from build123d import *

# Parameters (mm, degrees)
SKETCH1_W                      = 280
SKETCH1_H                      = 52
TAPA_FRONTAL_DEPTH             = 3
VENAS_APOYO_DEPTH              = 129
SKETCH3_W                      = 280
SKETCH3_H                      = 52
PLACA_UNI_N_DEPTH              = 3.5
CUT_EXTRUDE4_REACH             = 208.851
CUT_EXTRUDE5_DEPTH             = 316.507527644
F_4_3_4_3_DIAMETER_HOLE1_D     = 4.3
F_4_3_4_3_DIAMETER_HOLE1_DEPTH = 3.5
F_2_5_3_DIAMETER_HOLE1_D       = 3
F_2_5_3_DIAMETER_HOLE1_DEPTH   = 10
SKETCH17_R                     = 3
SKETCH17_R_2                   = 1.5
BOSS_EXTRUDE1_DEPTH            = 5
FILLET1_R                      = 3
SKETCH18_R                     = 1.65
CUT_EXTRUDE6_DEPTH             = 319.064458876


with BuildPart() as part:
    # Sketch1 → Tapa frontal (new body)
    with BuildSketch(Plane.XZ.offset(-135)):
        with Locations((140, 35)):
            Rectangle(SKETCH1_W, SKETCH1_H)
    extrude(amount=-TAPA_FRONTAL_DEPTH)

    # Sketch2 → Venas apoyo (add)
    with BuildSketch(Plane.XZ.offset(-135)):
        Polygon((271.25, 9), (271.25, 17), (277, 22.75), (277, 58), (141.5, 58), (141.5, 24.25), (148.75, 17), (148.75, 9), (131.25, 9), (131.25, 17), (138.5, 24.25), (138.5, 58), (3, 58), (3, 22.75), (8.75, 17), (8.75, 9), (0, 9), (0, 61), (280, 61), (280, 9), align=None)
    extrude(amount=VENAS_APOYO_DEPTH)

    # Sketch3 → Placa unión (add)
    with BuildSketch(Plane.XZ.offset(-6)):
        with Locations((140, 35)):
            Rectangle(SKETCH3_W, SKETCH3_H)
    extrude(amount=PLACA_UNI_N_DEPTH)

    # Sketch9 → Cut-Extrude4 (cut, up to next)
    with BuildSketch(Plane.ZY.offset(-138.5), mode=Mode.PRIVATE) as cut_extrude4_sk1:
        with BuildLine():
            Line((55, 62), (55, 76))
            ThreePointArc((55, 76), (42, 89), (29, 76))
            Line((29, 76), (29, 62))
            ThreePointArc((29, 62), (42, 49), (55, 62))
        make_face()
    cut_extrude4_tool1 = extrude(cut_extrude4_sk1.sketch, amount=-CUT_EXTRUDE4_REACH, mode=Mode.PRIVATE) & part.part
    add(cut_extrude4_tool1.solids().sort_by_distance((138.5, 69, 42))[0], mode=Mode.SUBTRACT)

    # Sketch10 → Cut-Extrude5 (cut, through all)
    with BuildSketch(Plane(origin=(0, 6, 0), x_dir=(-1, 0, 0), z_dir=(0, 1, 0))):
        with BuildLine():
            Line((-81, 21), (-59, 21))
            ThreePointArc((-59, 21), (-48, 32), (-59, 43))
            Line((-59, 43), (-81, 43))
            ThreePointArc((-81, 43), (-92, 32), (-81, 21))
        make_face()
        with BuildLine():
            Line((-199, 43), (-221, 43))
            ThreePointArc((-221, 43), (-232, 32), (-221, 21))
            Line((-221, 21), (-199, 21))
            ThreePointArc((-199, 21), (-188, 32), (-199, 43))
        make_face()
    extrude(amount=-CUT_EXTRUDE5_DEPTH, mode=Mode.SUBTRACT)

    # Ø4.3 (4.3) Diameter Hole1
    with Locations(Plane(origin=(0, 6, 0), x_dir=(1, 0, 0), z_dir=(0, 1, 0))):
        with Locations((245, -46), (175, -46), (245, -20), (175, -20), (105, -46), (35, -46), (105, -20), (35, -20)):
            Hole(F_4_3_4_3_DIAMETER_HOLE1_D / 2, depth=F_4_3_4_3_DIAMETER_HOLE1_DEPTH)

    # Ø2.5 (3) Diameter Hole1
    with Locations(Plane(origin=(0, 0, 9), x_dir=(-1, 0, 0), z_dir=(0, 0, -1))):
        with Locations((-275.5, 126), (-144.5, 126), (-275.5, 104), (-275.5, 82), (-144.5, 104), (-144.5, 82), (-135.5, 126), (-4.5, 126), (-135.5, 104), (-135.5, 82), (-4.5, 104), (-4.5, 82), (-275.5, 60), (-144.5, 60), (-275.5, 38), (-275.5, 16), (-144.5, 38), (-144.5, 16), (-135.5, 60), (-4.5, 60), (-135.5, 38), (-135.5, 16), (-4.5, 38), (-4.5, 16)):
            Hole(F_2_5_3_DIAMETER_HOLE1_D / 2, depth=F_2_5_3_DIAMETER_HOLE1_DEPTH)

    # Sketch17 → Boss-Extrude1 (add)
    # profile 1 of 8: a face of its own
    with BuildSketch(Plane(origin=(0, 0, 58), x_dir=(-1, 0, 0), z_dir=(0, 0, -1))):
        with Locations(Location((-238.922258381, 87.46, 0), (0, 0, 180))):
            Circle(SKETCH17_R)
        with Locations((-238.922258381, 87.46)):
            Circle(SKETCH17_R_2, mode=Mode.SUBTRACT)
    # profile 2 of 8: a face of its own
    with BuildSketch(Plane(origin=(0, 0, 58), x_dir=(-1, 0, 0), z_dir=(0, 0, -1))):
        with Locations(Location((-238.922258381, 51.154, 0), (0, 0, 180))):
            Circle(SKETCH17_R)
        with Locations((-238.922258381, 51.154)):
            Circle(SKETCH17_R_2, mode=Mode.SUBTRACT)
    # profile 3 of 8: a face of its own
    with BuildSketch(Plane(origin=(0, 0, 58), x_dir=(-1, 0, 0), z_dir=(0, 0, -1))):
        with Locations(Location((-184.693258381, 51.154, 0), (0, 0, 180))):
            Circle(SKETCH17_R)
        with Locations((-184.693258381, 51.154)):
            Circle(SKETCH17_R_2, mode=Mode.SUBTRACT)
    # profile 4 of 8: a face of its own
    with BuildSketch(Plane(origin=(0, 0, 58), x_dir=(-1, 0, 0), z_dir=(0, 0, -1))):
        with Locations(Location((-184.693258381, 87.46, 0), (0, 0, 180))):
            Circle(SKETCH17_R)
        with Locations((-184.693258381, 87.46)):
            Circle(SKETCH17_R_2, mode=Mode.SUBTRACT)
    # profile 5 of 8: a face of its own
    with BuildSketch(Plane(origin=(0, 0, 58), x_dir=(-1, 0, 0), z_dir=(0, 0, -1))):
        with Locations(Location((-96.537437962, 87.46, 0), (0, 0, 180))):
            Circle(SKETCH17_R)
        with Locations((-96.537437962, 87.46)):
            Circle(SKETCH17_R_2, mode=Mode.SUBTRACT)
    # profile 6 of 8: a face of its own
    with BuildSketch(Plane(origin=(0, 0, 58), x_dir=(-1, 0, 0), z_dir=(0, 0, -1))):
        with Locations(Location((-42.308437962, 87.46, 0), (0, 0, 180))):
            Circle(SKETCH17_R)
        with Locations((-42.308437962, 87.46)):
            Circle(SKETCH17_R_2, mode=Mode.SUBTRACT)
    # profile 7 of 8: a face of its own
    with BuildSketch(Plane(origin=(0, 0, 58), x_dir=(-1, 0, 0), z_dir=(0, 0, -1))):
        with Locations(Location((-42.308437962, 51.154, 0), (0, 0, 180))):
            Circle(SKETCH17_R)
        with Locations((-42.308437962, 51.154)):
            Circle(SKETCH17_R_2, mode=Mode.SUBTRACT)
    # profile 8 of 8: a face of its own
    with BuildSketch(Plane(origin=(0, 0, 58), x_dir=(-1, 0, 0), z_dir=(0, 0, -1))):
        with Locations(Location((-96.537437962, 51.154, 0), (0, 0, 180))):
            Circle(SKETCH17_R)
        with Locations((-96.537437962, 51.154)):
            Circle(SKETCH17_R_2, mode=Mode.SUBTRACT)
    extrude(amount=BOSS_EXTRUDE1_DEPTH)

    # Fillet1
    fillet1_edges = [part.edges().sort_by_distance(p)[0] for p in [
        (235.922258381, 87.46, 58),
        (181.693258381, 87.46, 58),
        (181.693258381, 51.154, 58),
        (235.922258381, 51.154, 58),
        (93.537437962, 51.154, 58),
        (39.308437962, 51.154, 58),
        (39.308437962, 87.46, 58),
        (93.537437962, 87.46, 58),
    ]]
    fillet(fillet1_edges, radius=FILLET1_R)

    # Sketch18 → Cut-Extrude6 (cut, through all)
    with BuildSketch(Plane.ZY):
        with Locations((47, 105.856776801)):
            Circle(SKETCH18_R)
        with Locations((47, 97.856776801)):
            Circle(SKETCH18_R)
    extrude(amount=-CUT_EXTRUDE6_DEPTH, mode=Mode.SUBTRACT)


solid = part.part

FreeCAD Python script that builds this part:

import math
import FreeCAD as App
import Part
import Sketcher

V = App.Vector


def edges_at(feature, points):
    """Names of the edges that pass closest to the given points."""
    edges = feature.Shape.Edges
    near = lambda p: min(range(len(edges)), key=lambda i: edges[i].distToShape(Part.Vertex(*p))[0])
    return sorted({f"Edge{near(p) + 1}" for p in points})


def add_polygon(sketch, points):
    """Adds a closed chain of lines whose ends are joined by coincident constraints."""
    first, n = sketch.GeometryCount, len(points)
    for a, b in zip(points, points[1:] + points[:1]):
        sketch.addGeometry(Part.LineSegment(App.Vector(*a, 0), App.Vector(*b, 0)), False)
    for i in range(n):
        sketch.addConstraint(Sketcher.Constraint("Coincident", first + i, 2, first + (i + 1) % n, 1))

doc = App.newDocument("Part")
params = doc.addObject("Spreadsheet::Sheet", "Params")
for row, (alias, value) in enumerate([
    ("sketch1_width", "280 mm"),
    ("sketch1_height", "52 mm"),
    ("pad1_length", "3 mm"),
    ("sketch2_width", "280 mm"),
    ("sketch2_height", "8 mm"),
    ("sketch2_height2", "52 mm"),
    ("sketch2_width2", "135.5 mm"),
    ("sketch2_width3", "17.5 mm"),
    ("pad2_length", "129 mm"),
    ("sketch3_width", "280 mm"),
    ("sketch3_height", "52 mm"),
    ("pad3_length", "3.5 mm"),
    ("sketch4_radius", "13 mm"),
    ("sketch4_width", "14 mm"),
    ("sketch5_radius", "11 mm"),
    ("sketch5_width", "22 mm"),
    ("sketch6_diameter", "4.3 mm"),
    ("hole_diameter", "4.3 mm"),
    ("hole_depth", "3.5 mm"),
    ("sketch7_diameter", "3 mm"),
    ("hole2_diameter", "3 mm"),
    ("hole2_depth", "10 mm"),
    ("sketch8_diameter", "6 mm"),
    ("sketch8_diameter2", "3 mm"),
    ("pad4_length", "5 mm"),
    ("fillet_radius", "3 mm"),
    ("sketch9_diameter", "3.3 mm"),
], start=1):
    params.set(f"A{row}", alias)
    params.set(f"B{row}", "=" + value)
    params.setAlias(f"B{row}", alias)

body = doc.addObject("PartDesign::Body", "Body")

sketch1 = body.newObject("Sketcher::SketchObject", "Sketch")
sketch1.AttachmentSupport = (doc.getObject("XZ_Plane"), [""])
sketch1.MapMode = "FlatFace"
sketch1.AttachmentOffset = App.Placement(V(0, 0, -135), App.Rotation())
add_polygon(sketch1, [(0, 61), (0, 9), (280, 9), (280, 61)])
sketch1.addConstraint(Sketcher.Constraint("Vertical", 0))
sketch1.addConstraint(Sketcher.Constraint("Horizontal", 1))
sketch1.addConstraint(Sketcher.Constraint("Vertical", 2))
sketch1.addConstraint(Sketcher.Constraint("Horizontal", 3))
sketch1.addConstraint(Sketcher.Constraint("PointOnObject", 0, 2, -2))
sketch1.addConstraint(Sketcher.Constraint("DistanceX", 1, 1, 1, 2, 280.0))
sketch1.addConstraint(Sketcher.Constraint("DistanceY", 0, 2, 0, 1, 52.0))
sketch1.addConstraint(Sketcher.Constraint("DistanceY", -1, 1, 0, 2, 9.0))
sketch1.setExpression("Constraints[9]", "Params.sketch1_width")
sketch1.setExpression("Constraints[10]", "Params.sketch1_height")
pad1 = body.newObject("PartDesign::Pad", "Pad")
pad1.Profile = sketch1
pad1.setExpression("Length", "Params.pad1_length")
pad1.Reversed = True

sketch2 = body.newObject("Sketcher::SketchObject", "Sketch001")
sketch2.AttachmentSupport = (doc.getObject("XZ_Plane"), [""])
sketch2.MapMode = "FlatFace"
sketch2.AttachmentOffset = App.Placement(V(0, 0, -135), App.Rotation())
add_polygon(sketch2, [(271, 17), (271, 9), (280, 9), (280, 61), (0, 61), (0, 9), (9, 9), (9, 17), (3, 23), (3, 58), (138, 58), (138, 24), (131, 17), (131, 9), (149, 9), (149, 17), (142, 24), (142, 58), (277, 58), (277, 23)])
sketch2.addConstraint(Sketcher.Constraint("Vertical", 0))
sketch2.addConstraint(Sketcher.Constraint("Horizontal", 1))
sketch2.addConstraint(Sketcher.Constraint("Vertical", 2))
sketch2.addConstraint(Sketcher.Constraint("Horizontal", 3))
sketch2.addConstraint(Sketcher.Constraint("Vertical", 4))
sketch2.addConstraint(Sketcher.Constraint("Horizontal", 5))
sketch2.addConstraint(Sketcher.Constraint("Vertical", 6))
sketch2.addConstraint(Sketcher.Constraint("Vertical", 8))
sketch2.addConstraint(Sketcher.Constraint("Horizontal", 9))
sketch2.addConstraint(Sketcher.Constraint("Vertical", 10))
sketch2.addConstraint(Sketcher.Constraint("Vertical", 12))
sketch2.addConstraint(Sketcher.Constraint("Horizontal", 13))
sketch2.addConstraint(Sketcher.Constraint("Vertical", 14))
sketch2.addConstraint(Sketcher.Constraint("Vertical", 16))
sketch2.addConstraint(Sketcher.Constraint("Horizontal", 17))
sketch2.addConstraint(Sketcher.Constraint("Vertical", 18))
sketch2.addConstraint(Sketcher.Constraint("PointOnObject", 3, 2, -2))
sketch2.addConstraint(Sketcher.Constraint("Perpendicular", 7, 11))
sketch2.addConstraint(Sketcher.Constraint("Perpendicular", 11, 15))
sketch2.addConstraint(Sketcher.Constraint("Perpendicular", 15, 19))
sketch2.addConstraint(Sketcher.Constraint("Horizontal", 1, 2, 4, 2))
sketch2.addConstraint(Sketcher.Constraint("Horizontal", 6, 2, 11, 2))
sketch2.addConstraint(Sketcher.Constraint("Horizontal", 5, 2, 12, 2))
sketch2.addConstraint(Sketcher.Constraint("Horizontal", 11, 2, 14, 2))
sketch2.addConstraint(Sketcher.Constraint("Horizontal", 10, 2, 15, 2))
sketch2.addConstraint(Sketcher.Constraint("Horizontal", 9, 2, 16, 2))
sketch2.addConstraint(Sketcher.Constraint("Horizontal", 7, 2, 18, 2))
sketch2.addConstraint(Sketcher.Constraint("Horizontal", 14, 2, 19, 2))
sketch2.addConstraint(Sketcher.Constraint("Equal", 1, 5))
sketch2.addConstraint(Sketcher.Constraint("Equal", 9, 17))
sketch2.addConstraint(Sketcher.Constraint("Equal", 11, 15))
sketch2.addConstraint(Sketcher.Constraint("DistanceX", 3, 2, 3, 1, 280.0))
sketch2.addConstraint(Sketcher.Constraint("DistanceY", 0, 2, 0, 1, 8.0))
sketch2.addConstraint(Sketcher.Constraint("DistanceY", 2, 1, 2, 2, 52.0))
sketch2.addConstraint(Sketcher.Constraint("DistanceX", 9, 1, 9, 2, 135.5))
sketch2.addConstraint(Sketcher.Constraint("DistanceX", 13, 1, 13, 2, 17.5))
sketch2.addConstraint(Sketcher.Constraint("DistanceY", -1, 1, 0, 2, 9.0))
sketch2.addConstraint(Sketcher.Constraint("DistanceX", -1, 1, 7, 2, 3.0))
sketch2.addConstraint(Sketcher.Constraint("DistanceY", -1, 1, 8, 2, 58.0))
sketch2.addConstraint(Sketcher.Constraint("DistanceX", 1, 1, 1, 2, 8.75))
sketch2.setExpression("Constraints[51]", "Params.sketch2_width")
sketch2.setExpression("Constraints[52]", "Params.sketch2_height")
sketch2.setExpression("Constraints[53]", "Params.sketch2_height2")
sketch2.setExpression("Constraints[54]", "Params.sketch2_width2")
sketch2.setExpression("Constraints[55]", "Params.sketch2_width3")
pad2 = body.newObject("PartDesign::Pad", "Pad001")
pad2.Profile = sketch2
pad2.setExpression("Length", "Params.pad2_length")

sketch3 = body.newObject("Sketcher::SketchObject", "Sketch002")
sketch3.AttachmentSupport = (doc.getObject("XZ_Plane"), [""])
sketch3.MapMode = "FlatFace"
sketch3.AttachmentOffset = App.Placement(V(0, 0, -6), App.Rotation())
add_polygon(sketch3, [(0, 61), (0, 9), (280, 9), (280, 61)])
sketch3.addConstraint(Sketcher.Constraint("Vertical", 0))
sketch3.addConstraint(Sketcher.Constraint("Horizontal", 1))
sketch3.addConstraint(Sketcher.Constraint("Vertical", 2))
sketch3.addConstraint(Sketcher.Constraint("Horizontal", 3))
sketch3.addConstraint(Sketcher.Constraint("PointOnObject", 0, 2, -2))
sketch3.addConstraint(Sketcher.Constraint("DistanceX", 1, 1, 1, 2, 280.0))
sketch3.addConstraint(Sketcher.Constraint("DistanceY", 0, 2, 0, 1, 52.0))
sketch3.addConstraint(Sketcher.Constraint("DistanceY", -1, 1, 0, 2, 9.0))
sketch3.setExpression("Constraints[9]", "Params.sketch3_width")
sketch3.setExpression("Constraints[10]", "Params.sketch3_height")
pad3 = body.newObject("PartDesign::Pad", "Pad002")
pad3.Profile = sketch3
pad3.setExpression("Length", "Params.pad3_length")

sketch4 = body.newObject("Sketcher::SketchObject", "Sketch003")
sketch4.AttachmentSupport = (doc.getObject("YZ_Plane"), [""])
sketch4.MapMode = "FlatFace"
sketch4.AttachmentOffset = App.Placement(V(0, 0, 138.5), App.Rotation())
sketch4.addGeometry(Part.LineSegment(V(62, 55, 0), V(76, 55, 0)), False)
sketch4.addGeometry(Part.ArcOfCircle(Part.Circle(V(76, 42, 0), V(0, 0, 1), 13), math.radians(-90), math.radians(90)), False)
sketch4.addGeometry(Part.LineSegment(V(76, 29, 0), V(62, 29, 0)), False)
sketch4.addGeometry(Part.ArcOfCircle(Part.Circle(V(62, 42, 0), V(0, 0, 1), 13), math.radians(90), math.radians(270)), False)
sketch4.addConstraint(Sketcher.Constraint("Tangent", 0, 2, 1, 2))
sketch4.addConstraint(Sketcher.Constraint("Tangent", 1, 1, 2, 1))
sketch4.addConstraint(Sketcher.Constraint("Tangent", 2, 2, 3, 2))
sketch4.addConstraint(Sketcher.Constraint("Tangent", 3, 1, 0, 1))
sketch4.addConstraint(Sketcher.Constraint("Horizontal", 0))
sketch4.addConstraint(Sketcher.Constraint("Horizontal", 2))
sketch4.addConstraint(Sketcher.Constraint("Radius", 1, 13.0))
sketch4.addConstraint(Sketcher.Constraint("DistanceX", 0, 1, 0, 2, 14.0))
sketch4.addConstraint(Sketcher.Constraint("DistanceX", -1, 1, 1, 3, 76.0))
sketch4.addConstraint(Sketcher.Constraint("DistanceY", -1, 1, 1, 3, 42.0))
sketch4.setExpression("Constraints[6]", "Params.sketch4_radius")
sketch4.setExpression("Constraints[7]", "Params.sketch4_width")
pocket1 = body.newObject("PartDesign::Pocket", "Pocket")
pocket1.Profile = sketch4
pocket1.Type = "UpToFirst"
pocket1.Reversed = True

sketch5 = body.newObject("Sketcher::SketchObject", "Sketch004")
sketch5.AttachmentSupport = (doc.getObject("XZ_Plane"), [""])
sketch5.MapMode = "FlatFace"
sketch5.AttachmentOffset = App.Placement(V(0, 0, -6), App.Rotation())
sketch5.addGeometry(Part.LineSegment(V(81, 21, 0), V(59, 21, 0)), False)
sketch5.addGeometry(Part.ArcOfCircle(Part.Circle(V(59, 32, 0), V(0, 0, 1), 11), math.radians(90), math.radians(270)), False)
sketch5.addGeometry(Part.LineSegment(V(59, 43, 0), V(81, 43, 0)), False)
sketch5.addGeometry(Part.ArcOfCircle(Part.Circle(V(81, 32, 0), V(0, 0, 1), 11), math.radians(-90), math.radians(90)), False)
sketch5.addGeometry(Part.LineSegment(V(199, 43, 0), V(221, 43, 0)), False)
sketch5.addGeometry(Part.ArcOfCircle(Part.Circle(V(221, 32, 0), V(0, 0, 1), 11), math.radians(-90), math.radians(90)), False)
sketch5.addGeometry(Part.LineSegment(V(221, 21, 0), V(199, 21, 0)), False)
sketch5.addGeometry(Part.ArcOfCircle(Part.Circle(V(199, 32, 0), V(0, 0, 1), 11), math.radians(90), math.radians(270)), False)
sketch5.addConstraint(Sketcher.Constraint("Tangent", 0, 2, 1, 2))
sketch5.addConstraint(Sketcher.Constraint("Tangent", 1, 1, 2, 1))
sketch5.addConstraint(Sketcher.Constraint("Tangent", 2, 2, 3, 2))
sketch5.addConstraint(Sketcher.Constraint("Tangent", 3, 1, 0, 1))
sketch5.addConstraint(Sketcher.Constraint("Tangent", 4, 2, 5, 2))
sketch5.addConstraint(Sketcher.Constraint("Tangent", 5, 1, 6, 1))
sketch5.addConstraint(Sketcher.Constraint("Tangent", 6, 2, 7, 2))
sketch5.addConstraint(Sketcher.Constraint("Tangent", 7, 1, 4, 1))
sketch5.addConstraint(Sketcher.Constraint("Horizontal", 0))
sketch5.addConstraint(Sketcher.Constraint("Horizontal", 2))
sketch5.addConstraint(Sketcher.Constraint("Horizontal", 4))
sketch5.addConstraint(Sketcher.Constraint("Horizontal", 6))
sketch5.addConstraint(Sketcher.Constraint("Equal", 3, 5))
sketch5.addConstraint(Sketcher.Constraint("Horizontal", 3, 3, 5, 3))
sketch5.addConstraint(Sketcher.Constraint("Equal", 2, 4))
sketch5.addConstraint(Sketcher.Constraint("Radius", 1, 11.0))
sketch5.addConstraint(Sketcher.Constraint("DistanceX", 0, 2, 0, 1, 22.0))
sketch5.addConstraint(Sketcher.Constraint("DistanceX", -1, 1, 1, 3, 59.0))
sketch5.addConstraint(Sketcher.Constraint("DistanceY", -1, 1, 1, 3, 32.0))
sketch5.addConstraint(Sketcher.Constraint("DistanceX", -1, 1, 5, 3, 221.0))
sketch5.setExpression("Constraints[15]", "Params.sketch5_radius")
sketch5.setExpression("Constraints[16]", "Params.sketch5_width")
pocket2 = body.newObject("PartDesign::Pocket", "Pocket001")
pocket2.Profile = sketch5
pocket2.Type = "ThroughAll"
pocket2.Reversed = True

sketch6 = body.newObject("Sketcher::SketchObject", "Sketch005")
sketch6.AttachmentSupport = (doc.getObject("XZ_Plane"), [""])
sketch6.MapMode = "FlatFace"
sketch6.AttachmentOffset = App.Placement(V(0, 0, -6), App.Rotation())
sketch6.addGeometry(Part.Circle(V(245, 46, 0), V(0, 0, 1), 2.1), False)
sketch6.addGeometry(Part.Circle(V(175, 46, 0), V(0, 0, 1), 2.1), False)
sketch6.addGeometry(Part.Circle(V(245, 20, 0), V(0, 0, 1), 2.1), False)
sketch6.addGeometry(Part.Circle(V(175, 20, 0), V(0, 0, 1), 2.1), False)
sketch6.addGeometry(Part.Circle(V(105, 46, 0), V(0, 0, 1), 2.1), False)
sketch6.addGeometry(Part.Circle(V(35, 46, 0), V(0, 0, 1), 2.1), False)
sketch6.addGeometry(Part.Circle(V(105, 20, 0), V(0, 0, 1), 2.1), False)
sketch6.addGeometry(Part.Circle(V(35, 20, 0), V(0, 0, 1), 2.1), False)
sketch6.addConstraint(Sketcher.Constraint("Equal", 0, 1))
sketch6.addConstraint(Sketcher.Constraint("Equal", 1, 2))
sketch6.addConstraint(Sketcher.Constraint("Equal", 2, 3))
sketch6.addConstraint(Sketcher.Constraint("Equal", 3, 4))
sketch6.addConstraint(Sketcher.Constraint("Equal", 4, 5))
sketch6.addConstraint(Sketcher.Constraint("Equal", 5, 6))
sketch6.addConstraint(Sketcher.Constraint("Equal", 6, 7))
sketch6.addConstraint(Sketcher.Constraint("Horizontal", 0, 3, 1, 3))
sketch6.addConstraint(Sketcher.Constraint("Horizontal", 2, 3, 3, 3))
sketch6.addConstraint(Sketcher.Constraint("Horizontal", 1, 3, 4, 3))
sketch6.addConstraint(Sketcher.Constraint("Horizontal", 4, 3, 5, 3))
sketch6.addConstraint(Sketcher.Constraint("Horizontal", 3, 3, 6, 3))
sketch6.addConstraint(Sketcher.Constraint("Horizontal", 6, 3, 7, 3))
sketch6.addConstraint(Sketcher.Constraint("Vertical", 0, 3, 2, 3))
sketch6.addConstraint(Sketcher.Constraint("Vertical", 1, 3, 3, 3))
sketch6.addConstraint(Sketcher.Constraint("Vertical", 4, 3, 6, 3))
sketch6.addConstraint(Sketcher.Constraint("Vertical", 5, 3, 7, 3))
sketch6.addConstraint(Sketcher.Constraint("Diameter", 0, 4.3))
sketch6.addConstraint(Sketcher.Constraint("DistanceX", -1, 1, 0, 3, 245.0))
sketch6.addConstraint(Sketcher.Constraint("DistanceY", -1, 1, 0, 3, 46.0))
sketch6.addConstraint(Sketcher.Constraint("DistanceX", -1, 1, 1, 3, 175.0))
sketch6.addConstraint(Sketcher.Constraint("DistanceY", -1, 1, 2, 3, 20.0))
sketch6.addConstraint(Sketcher.Constraint("DistanceX", -1, 1, 4, 3, 105.0))
sketch6.addConstraint(Sketcher.Constraint("DistanceX", -1, 1, 5, 3, 35.0))
sketch6.setExpression("Constraints[17]", "Params.sketch6_diameter")
doc.recompute()
hole = body.newObject("PartDesign::Hole", "Hole")
hole.Profile = sketch6
hole.ThreadType = "None"
hole.setExpression("Diameter", "Params.hole_diameter")
hole.DepthType = "Dimension"
hole.setExpression("Depth", "Params.hole_depth")
hole.DrillPoint = "Flat"
hole.Reversed = True

sketch7 = body.newObject("Sketcher::SketchObject", "Sketch006")
sketch7.AttachmentSupport = (doc.getObject("XY_Plane"), [""])
sketch7.MapMode = "FlatFace"
sketch7.AttachmentOffset = App.Placement(V(0, 0, 9), App.Rotation())
sketch7.addGeometry(Part.Circle(V(275.5, 126, 0), V(0, 0, 1), 1.5), False)
sketch7.addGeometry(Part.Circle(V(144.5, 126, 0), V(0, 0, 1), 1.5), False)
sketch7.addGeometry(Part.Circle(V(275.5, 104, 0), V(0, 0, 1), 1.5), False)
sketch7.addGeometry(Part.Circle(V(275.5, 82, 0), V(0, 0, 1), 1.5), False)
sketch7.addGeometry(Part.Circle(V(144.5, 104, 0), V(0, 0, 1), 1.5), False)
sketch7.addGeometry(Part.Circle(V(144.5, 82, 0), V(0, 0, 1), 1.5), False)
sketch7.addGeometry(Part.Circle(V(135.5, 126, 0), V(0, 0, 1), 1.5), False)
sketch7.addGeometry(Part.Circle(V(4.5, 126, 0), V(0, 0, 1), 1.5), False)
sketch7.addGeometry(Part.Circle(V(135.5, 104, 0), V(0, 0, 1), 1.5), False)
sketch7.addGeometry(Part.Circle(V(135.5, 82, 0), V(0, 0, 1), 1.5), False)
sketch7.addGeometry(Part.Circle(V(4.5, 104, 0), V(0, 0, 1), 1.5), False)
sketch7.addGeometry(Part.Circle(V(4.5, 82, 0), V(0, 0, 1), 1.5), False)
sketch7.addGeometry(Part.Circle(V(275.5, 60, 0), V(0, 0, 1), 1.5), False)
sketch7.addGeometry(Part.Circle(V(144.5, 60, 0), V(0, 0, 1), 1.5), False)
sketch7.addGeometry(Part.Circle(V(275.5, 38, 0), V(0, 0, 1), 1.5), False)
sketch7.addGeometry(Part.Circle(V(275.5, 16, 0), V(0, 0, 1), 1.5), False)
sketch7.addGeometry(Part.Circle(V(144.5, 38, 0), V(0, 0, 1), 1.5), False)
sketch7.addGeometry(Part.Circle(V(144.5, 16, 0), V(0, 0, 1), 1.5), False)
sketch7.addGeometry(Part.Circle(V(135.5, 60, 0), V(0, 0, 1), 1.5), False)
sketch7.addGeometry(Part.Circle(V(4.5, 60, 0), V(0, 0, 1), 1.5), False)
sketch7.addGeometry(Part.Circle(V(135.5, 38, 0), V(0, 0, 1), 1.5), False)
sketch7.addGeometry(Part.Circle(V(135.5, 16, 0), V(0, 0, 1), 1.5), False)
sketch7.addGeometry(Part.Circle(V(4.5, 38, 0), V(0, 0, 1), 1.5), False)
sketch7.addGeometry(Part.Circle(V(4.5, 16, 0), V(0, 0, 1), 1.5), False)
sketch7.addConstraint(Sketcher.Constraint("Equal", 0, 1))
sketch7.addConstraint(Sketcher.Constraint("Equal", 1, 2))
sketch7.addConstraint(Sketcher.Constraint("Equal", 2, 3))
sketch7.addConstraint(Sketcher.Constraint("Equal", 3, 4))
sketch7.addConstraint(Sketcher.Constraint("Equal", 4, 5))
sketch7.addConstraint(Sketcher.Constraint("Equal", 5, 6))
sketch7.addConstraint(Sketcher.Constraint("Equal", 6, 7))
sketch7.addConstraint(Sketcher.Constraint("Equal", 7, 8))
sketch7.addConstraint(Sketcher.Constraint("Equal", 8, 9))
sketch7.addConstraint(Sketcher.Constraint("Equal", 9, 10))
sketch7.addConstraint(Sketcher.Constraint("Equal", 10, 11))
sketch7.addConstraint(Sketcher.Constraint("Equal", 11, 12))
sketch7.addConstraint(Sketcher.Constraint("Equal", 12, 13))
sketch7.addConstraint(Sketcher.Constraint("Equal", 13, 14))
sketch7.addConstraint(Sketcher.Constraint("Equal", 14, 15))
sketch7.addConstraint(Sketcher.Constraint("Equal", 15, 16))
sketch7.addConstraint(Sketcher.Constraint("Equal", 16, 17))
sketch7.addConstraint(Sketcher.Constraint("Equal", 17, 18))
sketch7.addConstraint(Sketcher.Constraint("Equal", 18, 19))
sketch7.addConstraint(Sketcher.Constraint("Equal", 19, 20))
sketch7.addConstraint(Sketcher.Constraint("Equal", 20, 21))
sketch7.addConstraint(Sketcher.Constraint("Equal", 21, 22))
sketch7.addConstraint(Sketcher.Constraint("Equal", 22, 23))
sketch7.addConstraint(Sketcher.Constraint("Horizontal", 0, 3, 1, 3))
sketch7.addConstraint(Sketcher.Constraint("Horizontal", 2, 3, 4, 3))
sketch7.addConstraint(Sketcher.Constraint("Horizontal", 3, 3, 5, 3))
sketch7.addConstraint(Sketcher.Constraint("Horizontal", 1, 3, 6, 3))
sketch7.addConstraint(Sketcher.Constraint("Horizontal", 6, 3, 7, 3))
sketch7.addConstraint(Sketcher.Constraint("Horizontal", 4, 3, 8, 3))
sketch7.addConstraint(Sketcher.Constraint("Horizontal", 5, 3, 9, 3))
sketch7.addConstraint(Sketcher.Constraint("Horizontal", 8, 3, 10, 3))
sketch7.addConstraint(Sketcher.Constraint("Horizontal", 9, 3, 11, 3))
sketch7.addConstraint(Sketcher.Constraint("Horizontal", 12, 3, 13, 3))
sketch7.addConstraint(Sketcher.Constraint("Horizontal", 14, 3, 16, 3))
sketch7.addConstraint(Sketcher.Constraint("Horizontal", 15, 3, 17, 3))
sketch7.addConstraint(Sketcher.Constraint("Horizontal", 13, 3, 18, 3))
sketch7.addConstraint(Sketcher.Constraint("Horizontal", 18, 3, 19, 3))
sketch7.addConstraint(Sketcher.Constraint("Horizontal", 16, 3, 20, 3))
sketch7.addConstraint(Sketcher.Constraint("Horizontal", 17, 3, 21, 3))
sketch7.addConstraint(Sketcher.Constraint("Horizontal", 20, 3, 22, 3))
sketch7.addConstraint(Sketcher.Constraint("Horizontal", 21, 3, 23, 3))
sketch7.addConstraint(Sketcher.Constraint("Vertical", 0, 3, 2, 3))
sketch7.addConstraint(Sketcher.Constraint("Vertical", 2, 3, 3, 3))
sketch7.addConstraint(Sketcher.Constraint("Vertical", 1, 3, 4, 3))
sketch7.addConstraint(Sketcher.Constraint("Vertical", 4, 3, 5, 3))
sketch7.addConstraint(Sketcher.Constraint("Vertical", 6, 3, 8, 3))
sketch7.addConstraint(Sketcher.Constraint("Vertical", 8, 3, 9, 3))
sketch7.addConstraint(Sketcher.Constraint("Vertical", 7, 3, 10, 3))
sketch7.addConstraint(Sketcher.Constraint("Vertical", 10, 3, 11, 3))
sketch7.addConstraint(Sketcher.Constraint("Vertical", 3, 3, 12, 3))
sketch7.addConstraint(Sketcher.Constraint("Vertical", 5, 3, 13, 3))
sketch7.addConstraint(Sketcher.Constraint("Vertical", 12, 3, 14, 3))
sketch7.addConstraint(Sketcher.Constraint("Vertical", 14, 3, 15, 3))
sketch7.addConstraint(Sketcher.Constraint("Vertical", 13, 3, 16, 3))
sketch7.addConstraint(Sketcher.Constraint("Vertical", 16, 3, 17, 3))
sketch7.addConstraint(Sketcher.Constraint("Vertical", 9, 3, 18, 3))
sketch7.addConstraint(Sketcher.Constraint("Vertical", 11, 3, 19, 3))
sketch7.addConstraint(Sketcher.Constraint("Vertical", 18, 3, 20, 3))
sketch7.addConstraint(Sketcher.Constraint("Vertical", 20, 3, 21, 3))
sketch7.addConstraint(Sketcher.Constraint("Vertical", 19, 3, 22, 3))
sketch7.addConstraint(Sketcher.Constraint("Vertical", 22, 3, 23, 3))
sketch7.addConstraint(Sketcher.Constraint("Diameter", 0, 3.0))
sketch7.addConstraint(Sketcher.Constraint("DistanceY", -1, 1, 0, 3, 126.0))
sketch7.addConstraint(Sketcher.Constraint("DistanceY", -1, 1, 2, 3, 104.0))
sketch7.addConstraint(Sketcher.Constraint("DistanceY", -1, 1, 3, 3, 82.0))
sketch7.addConstraint(Sketcher.Constraint("DistanceY", -1, 1, 12, 3, 60.0))
sketch7.addConstraint(Sketcher.Constraint("DistanceY", -1, 1, 14, 3, 38.0))
sketch7.addConstraint(Sketcher.Constraint("DistanceY", -1, 1, 15, 3, 16.0))
sketch7.addConstraint(Sketcher.Constraint("DistanceX", 1, 3, 0, 3, 131.0))
sketch7.addConstraint(Sketcher.Constraint("DistanceX", 6, 3, 1, 3, 9.0))
sketch7.addConstraint(Sketcher.Constraint("DistanceX", 7, 3, 6, 3, 131.0))
sketch7.addConstraint(Sketcher.Constraint("DistanceX", -1, 1, 0, 3, 275.5))
sketch7.setExpression("Constraints[61]", "Params.sketch7_diameter")
doc.recompute()
hole2 = body.newObject("PartDesign::Hole", "Hole001")
hole2.Profile = sketch7
hole2.ThreadType = "None"
hole2.setExpression("Diameter", "Params.hole2_diameter")
hole2.DepthType = "Dimension"
hole2.setExpression("Depth", "Params.hole2_depth")
hole2.DrillPoint = "Flat"
hole2.Reversed = True

sketch8 = body.newObject("Sketcher::SketchObject", "Sketch007")
sketch8.AttachmentSupport = (doc.getObject("XY_Plane"), [""])
sketch8.MapMode = "FlatFace"
sketch8.AttachmentOffset = App.Placement(V(0, 0, 58), App.Rotation())
sketch8.addGeometry(Part.Circle(V(238.9, 87.5, 0), V(0, 0, 1), 3), False)
sketch8.addGeometry(Part.Circle(V(238.9, 87.5, 0), V(0, 0, 1), 1.5), False)
sketch8.addGeometry(Part.Circle(V(238.9, 51.2, 0), V(0, 0, 1), 3), False)
sketch8.addGeometry(Part.Circle(V(238.9, 51.2, 0), V(0, 0, 1), 1.5), False)
sketch8.addGeometry(Part.Circle(V(184.7, 51.2, 0), V(0, 0, 1), 3), False)
sketch8.addGeometry(Part.Circle(V(184.7, 51.2, 0), V(0, 0, 1), 1.5), False)
sketch8.addGeometry(Part.Circle(V(184.7, 87.5, 0), V(0, 0, 1), 3), False)
sketch8.addGeometry(Part.Circle(V(184.7, 87.5, 0), V(0, 0, 1), 1.5), False)
sketch8.addGeometry(Part.Circle(V(96.5, 87.5, 0), V(0, 0, 1), 3), False)
sketch8.addGeometry(Part.Circle(V(96.5, 87.5, 0), V(0, 0, 1), 1.5), False)
sketch8.addGeometry(Part.Circle(V(42.3, 87.5, 0), V(0, 0, 1), 3), False)
sketch8.addGeometry(Part.Circle(V(42.3, 87.5, 0), V(0, 0, 1), 1.5), False)
sketch8.addGeometry(Part.Circle(V(42.3, 51.2, 0), V(0, 0, 1), 3), False)
sketch8.addGeometry(Part.Circle(V(42.3, 51.2, 0), V(0, 0, 1), 1.5), False)
sketch8.addGeometry(Part.Circle(V(96.5, 51.2, 0), V(0, 0, 1), 3), False)
sketch8.addGeometry(Part.Circle(V(96.5, 51.2, 0), V(0, 0, 1), 1.5), False)
sketch8.addConstraint(Sketcher.Constraint("Coincident", 1, 3, 0, 3))
sketch8.addConstraint(Sketcher.Constraint("Coincident", 3, 3, 2, 3))
sketch8.addConstraint(Sketcher.Constraint("Coincident", 5, 3, 4, 3))
sketch8.addConstraint(Sketcher.Constraint("Coincident", 7, 3, 6, 3))
sketch8.addConstraint(Sketcher.Constraint("Coincident", 9, 3, 8, 3))
sketch8.addConstraint(Sketcher.Constraint("Coincident", 11, 3, 10, 3))
sketch8.addConstraint(Sketcher.Constraint("Coincident", 13, 3, 12, 3))
sketch8.addConstraint(Sketcher.Constraint("Coincident", 15, 3, 14, 3))
sketch8.addConstraint(Sketcher.Constraint("Equal", 0, 2))
sketch8.addConstraint(Sketcher.Constraint("Equal", 1, 3))
sketch8.addConstraint(Sketcher.Constraint("Equal", 2, 4))
sketch8.addConstraint(Sketcher.Constraint("Equal", 3, 5))
sketch8.addConstraint(Sketcher.Constraint("Equal", 4, 6))
sketch8.addConstraint(Sketcher.Constraint("Equal", 5, 7))
sketch8.addConstraint(Sketcher.Constraint("Equal", 6, 8))
sketch8.addConstraint(Sketcher.Constraint("Equal", 7, 9))
sketch8.addConstraint(Sketcher.Constraint("Equal", 8, 10))
sketch8.addConstraint(Sketcher.Constraint("Equal", 9, 11))
sketch8.addConstraint(Sketcher.Constraint("Equal", 10, 12))
sketch8.addConstraint(Sketcher.Constraint("Equal", 11, 13))
sketch8.addConstraint(Sketcher.Constraint("Equal", 12, 14))
sketch8.addConstraint(Sketcher.Constraint("Equal", 13, 15))
sketch8.addConstraint(Sketcher.Constraint("Horizontal", 3, 3, 4, 3))
sketch8.addConstraint(Sketcher.Constraint("Horizontal", 1, 3, 6, 3))
sketch8.addConstraint(Sketcher.Constraint("Horizontal", 7, 3, 8, 3))
sketch8.addConstraint(Sketcher.Constraint("Horizontal", 9, 3, 10, 3))
sketch8.addConstraint(Sketcher.Constraint("Horizontal", 5, 3, 12, 3))
sketch8.addConstraint(Sketcher.Constraint("Horizontal", 13, 3, 14, 3))
sketch8.addConstraint(Sketcher.Constraint("Vertical", 1, 3, 2, 3))
sketch8.addConstraint(Sketcher.Constraint("Vertical", 5, 3, 6, 3))
sketch8.addConstraint(Sketcher.Constraint("Vertical", 11, 3, 12, 3))
sketch8.addConstraint(Sketcher.Constraint("Vertical", 9, 3, 14, 3))
sketch8.addConstraint(Sketcher.Constraint("Diameter", 0, 6.0))
sketch8.addConstraint(Sketcher.Constraint("Diameter", 1, 3.0))
sketch8.addConstraint(Sketcher.Constraint("DistanceY", -1, 1, 0, 3, 87.46))
sketch8.addConstraint(Sketcher.Constraint("DistanceY", -1, 1, 2, 3, 51.154))
sketch8.addConstraint(Sketcher.Constraint("DistanceX", 4, 3, 2, 3, 54.229))
sketch8.addConstraint(Sketcher.Constraint("DistanceX", 10, 3, 8, 3, 54.229))
sketch8.addConstraint(Sketcher.Constraint("DistanceX", -1, 1, 0, 3, 238.922258))
sketch8.addConstraint(Sketcher.Constraint("DistanceX", 8, 3, 6, 3, 88.15582))
sketch8.setExpression("Constraints[32]", "Params.sketch8_diameter")
sketch8.setExpression("Constraints[33]", "Params.sketch8_diameter2")
pad4 = body.newObject("PartDesign::Pad", "Pad003")
pad4.Profile = sketch8
pad4.setExpression("Length", "Params.pad4_length")
pad4.Reversed = True
doc.recompute()

fillet = body.newObject("PartDesign::Fillet", "Fillet")
fillet.Base = (pad4, edges_at(pad4, [
    (235.922, 87.46, 58),
    (181.693, 87.46, 58),
    (181.693, 51.154, 58),
    (235.922, 51.154, 58),
    (93.537, 51.154, 58),
    (39.308, 51.154, 58),
    (39.308, 87.46, 58),
    (93.537, 87.46, 58),
]))
fillet.setExpression("Radius", "Params.fillet_radius")

sketch9 = body.newObject("Sketcher::SketchObject", "Sketch008")
sketch9.AttachmentSupport = (doc.getObject("YZ_Plane"), [""])
sketch9.MapMode = "FlatFace"
sketch9.addGeometry(Part.Circle(V(105.9, 47, 0), V(0, 0, 1), 1.6), False)
sketch9.addGeometry(Part.Circle(V(97.9, 47, 0), V(0, 0, 1), 1.6), False)
sketch9.addConstraint(Sketcher.Constraint("Equal", 0, 1))
sketch9.addConstraint(Sketcher.Constraint("Horizontal", 0, 3, 1, 3))
sketch9.addConstraint(Sketcher.Constraint("Diameter", 0, 3.3))
sketch9.addConstraint(Sketcher.Constraint("DistanceY", -1, 1, 0, 3, 47.0))
sketch9.addConstraint(Sketcher.Constraint("DistanceX", 1, 3, 0, 3, 8.0))
sketch9.addConstraint(Sketcher.Constraint("DistanceX", -1, 1, 0, 3, 105.856777))
sketch9.setExpression("Constraints[2]", "Params.sketch9_diameter")
pocket3 = body.newObject("PartDesign::Pocket", "Pocket002")
pocket3.Profile = sketch9
pocket3.Type = "ThroughAll"
pocket3.Reversed = True

doc.recompute()
